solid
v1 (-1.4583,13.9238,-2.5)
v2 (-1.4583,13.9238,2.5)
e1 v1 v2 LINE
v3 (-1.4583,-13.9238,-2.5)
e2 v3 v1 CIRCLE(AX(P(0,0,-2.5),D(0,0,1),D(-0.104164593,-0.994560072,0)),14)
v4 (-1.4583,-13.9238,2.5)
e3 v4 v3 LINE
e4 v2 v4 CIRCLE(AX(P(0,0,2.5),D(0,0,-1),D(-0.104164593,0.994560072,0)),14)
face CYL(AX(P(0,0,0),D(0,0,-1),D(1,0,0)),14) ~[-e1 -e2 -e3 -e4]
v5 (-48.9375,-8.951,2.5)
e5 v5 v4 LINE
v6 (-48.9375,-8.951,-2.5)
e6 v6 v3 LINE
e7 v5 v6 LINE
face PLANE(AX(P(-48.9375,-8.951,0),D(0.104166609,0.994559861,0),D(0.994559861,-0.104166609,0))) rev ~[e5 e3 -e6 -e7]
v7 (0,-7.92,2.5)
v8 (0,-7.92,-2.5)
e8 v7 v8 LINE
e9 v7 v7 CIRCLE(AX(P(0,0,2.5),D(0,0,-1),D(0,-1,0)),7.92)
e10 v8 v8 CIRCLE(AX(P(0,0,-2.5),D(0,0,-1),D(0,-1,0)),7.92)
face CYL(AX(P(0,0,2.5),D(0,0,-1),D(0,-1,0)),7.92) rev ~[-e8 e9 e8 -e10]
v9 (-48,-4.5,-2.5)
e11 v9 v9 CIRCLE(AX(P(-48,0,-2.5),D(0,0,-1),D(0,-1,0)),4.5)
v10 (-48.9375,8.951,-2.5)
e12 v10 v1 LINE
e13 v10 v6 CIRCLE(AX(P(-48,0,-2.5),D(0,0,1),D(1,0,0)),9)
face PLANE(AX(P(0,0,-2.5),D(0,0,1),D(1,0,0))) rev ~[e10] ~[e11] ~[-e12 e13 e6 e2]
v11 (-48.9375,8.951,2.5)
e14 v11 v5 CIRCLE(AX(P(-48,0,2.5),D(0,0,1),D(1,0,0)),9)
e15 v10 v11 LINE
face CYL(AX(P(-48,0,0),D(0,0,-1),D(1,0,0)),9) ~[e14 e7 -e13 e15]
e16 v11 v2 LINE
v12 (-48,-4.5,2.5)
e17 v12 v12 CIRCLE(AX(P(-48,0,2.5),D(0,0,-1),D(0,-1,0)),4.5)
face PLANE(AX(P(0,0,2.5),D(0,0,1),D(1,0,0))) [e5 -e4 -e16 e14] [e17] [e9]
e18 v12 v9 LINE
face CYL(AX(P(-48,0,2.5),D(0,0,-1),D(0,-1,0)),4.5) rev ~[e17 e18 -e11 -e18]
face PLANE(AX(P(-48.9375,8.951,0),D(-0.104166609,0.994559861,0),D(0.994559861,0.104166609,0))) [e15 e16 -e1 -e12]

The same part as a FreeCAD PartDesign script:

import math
import FreeCAD as App
import Part
import Sketcher

doc = App.newDocument("Part")
body = doc.addObject("PartDesign::Body", "Body")

sketch1 = body.newObject("Sketcher::SketchObject", "Sketch")
sketch1.AttachmentSupport = (doc.getObject("XY_Plane"), [""])
sketch1.MapMode = "FlatFace"
sketch1.addGeometry(Part.ArcOfCircle(Part.Circle(App.Vector(0, 0, 0), App.Vector(0, 0, 1), 14), math.radians(-95.979037), math.radians(95.979037)), False)
sketch1.addGeometry(Part.LineSegment(App.Vector(-1.4583, 13.9238, 0), App.Vector(-48.9375, 8.951, 0)), False)
sketch1.addGeometry(Part.ArcOfCircle(Part.Circle(App.Vector(-48, 0, 0), App.Vector(0, 0, 1), 9), math.radians(95.979182), math.radians(264.020818)), False)
sketch1.addGeometry(Part.LineSegment(App.Vector(-48.9375, -8.951, 0), App.Vector(-1.4583, -13.9238, 0)), False)
sketch1.addConstraint(Sketcher.Constraint("Tangent", 0, 2, 1, 1))
sketch1.addConstraint(Sketcher.Constraint("Tangent", 1, 2, 2, 1))
sketch1.addConstraint(Sketcher.Constraint("Tangent", 2, 2, 3, 1))
sketch1.addConstraint(Sketcher.Constraint("Tangent", 3, 2, 0, 1))
sketch1.addConstraint(Sketcher.Constraint("Coincident", 0, 3, -1, 1))
sketch1.addConstraint(Sketcher.Constraint("PointOnObject", 2, 3, -1))
sketch1.addConstraint(Sketcher.Constraint("Radius", 0, 14.0))
sketch1.addConstraint(Sketcher.Constraint("Radius", 2, 9.0))
sketch1.addConstraint(Sketcher.Constraint("DistanceX", 2, 3, -1, 1, 48.0))
pad1 = body.newObject("PartDesign::Pad", "Pad")
pad1.Profile = sketch1
pad1.Length = 5
pad1.Midplane = True

sketch2 = body.newObject("Sketcher::SketchObject", "Sketch001")
sketch2.AttachmentSupport = (doc.getObject("XY_Plane"), [""])
sketch2.MapMode = "FlatFace"
sketch2.AttachmentOffset = App.Placement(App.Vector(0, 0, 2.5), App.Rotation())
sketch2.addGeometry(Part.Circle(App.Vector(0, 0, 0), App.Vector(0, 0, 1), 7.92), False)
sketch2.addConstraint(Sketcher.Constraint("Coincident", 0, 3, -1, 1))
sketch2.addConstraint(Sketcher.Constraint("Diameter", 0, 15.84))
doc.recompute()
hole = body.newObject("PartDesign::Hole", "Hole")
hole.Profile = sketch2
hole.ThreadType = "None"
hole.Diameter = 15.84
hole.DepthType = "ThroughAll"

sketch3 = body.newObject("Sketcher::SketchObject", "Sketch002")
sketch3.AttachmentSupport = (doc.getObject("XY_Plane"), [""])
sketch3.MapMode = "FlatFace"
sketch3.AttachmentOffset = App.Placement(App.Vector(0, 0, 2.5), App.Rotation())
sketch3.addGeometry(Part.Circle(App.Vector(-48, 0, 0), App.Vector(0, 0, 1), 4.5), False)
sketch3.addConstraint(Sketcher.Constraint("PointOnObject", 0, 3, -1))
sketch3.addConstraint(Sketcher.Constraint("Diameter", 0, 9.0))
sketch3.addConstraint(Sketcher.Constraint("DistanceX", 0, 3, -1, 1, 48.0))
doc.recompute()
hole2 = body.newObject("PartDesign::Hole", "Hole001")
hole2.Profile = sketch3
hole2.ThreadType = "None"
hole2.Diameter = 9
hole2.DepthType = "ThroughAll"

doc.recompute()
